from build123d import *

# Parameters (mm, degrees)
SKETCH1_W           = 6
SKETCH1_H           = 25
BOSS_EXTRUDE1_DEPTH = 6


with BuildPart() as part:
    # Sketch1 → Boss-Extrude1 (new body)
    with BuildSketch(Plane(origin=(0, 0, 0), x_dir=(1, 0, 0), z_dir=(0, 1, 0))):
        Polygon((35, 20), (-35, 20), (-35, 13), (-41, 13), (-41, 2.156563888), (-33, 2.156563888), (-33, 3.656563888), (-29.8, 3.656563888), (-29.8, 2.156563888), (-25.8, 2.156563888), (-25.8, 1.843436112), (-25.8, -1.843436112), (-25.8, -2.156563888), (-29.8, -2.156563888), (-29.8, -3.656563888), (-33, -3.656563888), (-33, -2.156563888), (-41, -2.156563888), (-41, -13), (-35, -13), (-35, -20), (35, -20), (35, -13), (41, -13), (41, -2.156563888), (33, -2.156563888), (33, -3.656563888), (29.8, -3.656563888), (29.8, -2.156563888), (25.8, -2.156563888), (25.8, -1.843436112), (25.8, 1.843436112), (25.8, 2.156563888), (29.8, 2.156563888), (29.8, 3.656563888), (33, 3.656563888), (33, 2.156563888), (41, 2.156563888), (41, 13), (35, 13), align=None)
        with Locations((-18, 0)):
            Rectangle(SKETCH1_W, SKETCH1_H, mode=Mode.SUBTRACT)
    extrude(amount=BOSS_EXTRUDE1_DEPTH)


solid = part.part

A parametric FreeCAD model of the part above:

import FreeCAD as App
import Part
import Sketcher

V = App.Vector
Q = App.Units.Quantity

doc = App.newDocument("Part")
params = doc.addObject("Spreadsheet::Sheet", "Params")
for row, (alias, value) in enumerate([
    ("sketch1_width", "70 mm"),
    ("sketch1_width2", "6 mm"),
    ("sketch1_width3", "8 mm"),
    ("sketch1_width4", "4 mm"),
    ("sketch1_height", "7 mm"),
    ("pad1_length", "6 mm"),
], start=1):
    params.set(f"A{row}", alias)
    params.set(f"B{row}", "=" + value)
    params.setAlias(f"B{row}", alias)

body = doc.addObject("PartDesign::Body", "Body")

sketch1 = body.newObject("Sketcher::SketchObject", "Sketch")
sketch1.AttachmentSupport = (doc.getObject("XZ_Plane"), [""])
sketch1.MapMode = "FlatFace"
sketch1.addGeometry(Part.LineSegment(V(35, -20, 0), V(-35, -20, 0)), False)
sketch1.addGeometry(Part.LineSegment(V(-35, -20, 0), V(-35, -13, 0)), False)
sketch1.addGeometry(Part.LineSegment(V(-35, -13, 0), V(-41, -13, 0)), False)
sketch1.addGeometry(Part.LineSegment(V(-41, -13, 0), V(-41, -2.2, 0)), False)
sketch1.addGeometry(Part.LineSegment(V(-41, -2.2, 0), V(-33, -2.2, 0)), False)
sketch1.addGeometry(Part.LineSegment(V(-33, -2.2, 0), V(-33, -3.7, 0)), False)
sketch1.addGeometry(Part.LineSegment(V(-33, -3.7, 0), V(-29.8, -3.7, 0)), False)
sketch1.addGeometry(Part.LineSegment(V(-29.8, -3.7, 0), V(-29.8, -2.2, 0)), False)
sketch1.addGeometry(Part.LineSegment(V(-29.8, -2.2, 0), V(-25.8, -2.2, 0)), False)
sketch1.addGeometry(Part.LineSegment(V(-25.8, -2.2, 0), V(-25.8, 2.2, 0)), False)
sketch1.addGeometry(Part.LineSegment(V(-25.8, 2.2, 0), V(-29.8, 2.2, 0)), False)
sketch1.addGeometry(Part.LineSegment(V(-29.8, 2.2, 0), V(-29.8, 3.7, 0)), False)
sketch1.addGeometry(Part.LineSegment(V(-29.8, 3.7, 0), V(-33, 3.7, 0)), False)
sketch1.addGeometry(Part.LineSegment(V(-33, 3.7, 0), V(-33, 2.2, 0)), False)
sketch1.addGeometry(Part.LineSegment(V(-33, 2.2, 0), V(-41, 2.2, 0)), False)
sketch1.addGeometry(Part.LineSegment(V(-41, 2.2, 0), V(-41, 13, 0)), False)
sketch1.addGeometry(Part.LineSegment(V(-41, 13, 0), V(-35, 13, 0)), False)
sketch1.addGeometry(Part.LineSegment(V(-35, 13, 0), V(-35, 20, 0)), False)
sketch1.addGeometry(Part.LineSegment(V(-35, 20, 0), V(35, 20, 0)), False)
sketch1.addGeometry(Part.LineSegment(V(35, 20, 0), V(35, 13, 0)), False)
sketch1.addGeometry(Part.LineSegment(V(35, 13, 0), V(41, 13, 0)), False)
sketch1.addGeometry(Part.LineSegment(V(41, 13, 0), V(41, 2.2, 0)), False)
sketch1.addGeometry(Part.LineSegment(V(41, 2.2, 0), V(33, 2.2, 0)), False)
sketch1.addGeometry(Part.LineSegment(V(33, 2.2, 0), V(33, 3.7, 0)), False)
sketch1.addGeometry(Part.LineSegment(V(33, 3.7, 0), V(29.8, 3.7, 0)), False)
sketch1.addGeometry(Part.LineSegment(V(29.8, 3.7, 0), V(29.8, 2.2, 0)), False)
sketch1.addGeometry(Part.LineSegment(V(29.8, 2.2, 0), V(25.8, 2.2, 0)), False)
sketch1.addGeometry(Part.LineSegment(V(25.8, 2.2, 0), V(25.8, -2.2, 0)), False)
sketch1.addGeometry(Part.LineSegment(V(25.8, -2.2, 0), V(29.8, -2.2, 0)), False)
sketch1.addGeometry(Part.LineSegment(V(29.8, -2.2, 0), V(29.8, -3.7, 0)), False)
sketch1.addGeometry(Part.LineSegment(V(29.8, -3.7, 0), V(33, -3.7, 0)), False)
sketch1.addGeometry(Part.LineSegment(V(33, -3.7, 0), V(33, -2.2, 0)), False)
sketch1.addGeometry(Part.LineSegment(V(33, -2.2, 0), V(41, -2.2, 0)), False)
sketch1.addGeometry(Part.LineSegment(V(41, -2.2, 0), V(41, -13, 0)), False)
sketch1.addGeometry(Part.LineSegment(V(41, -13, 0), V(35, -13, 0)), False)
sketch1.addGeometry(Part.LineSegment(V(35, -13, 0), V(35, -20, 0)), False)
sketch1.addGeometry(Part.LineSegment(V(-15, 12.5, 0), V(-21, 12.5, 0)), False)
sketch1.addGeometry(Part.LineSegment(V(-21, 12.5, 0), V(-21, -12.5, 0)), False)
sketch1.addGeometry(Part.LineSegment(V(-21, -12.5, 0), V(-15, -12.5, 0)), False)
sketch1.addGeometry(Part.LineSegment(V(-15, -12.5, 0), V(-15, 12.5, 0)), False)
sketch1.addConstraint(Sketcher.Constraint("Coincident", 0, 2, 1, 1))
sketch1.addConstraint(Sketcher.Constraint("Coincident", 1, 2, 2, 1))
sketch1.addConstraint(Sketcher.Constraint("Coincident", 2, 2, 3, 1))
sketch1.addConstraint(Sketcher.Constraint("Coincident", 3, 2, 4, 1))
sketch1.addConstraint(Sketcher.Constraint("Coincident", 4, 2, 5, 1))
sketch1.addConstraint(Sketcher.Constraint("Coincident", 5, 2, 6, 1))
sketch1.addConstraint(Sketcher.Constraint("Coincident", 6, 2, 7, 1))
sketch1.addConstraint(Sketcher.Constraint("Coincident", 7, 2, 8, 1))
sketch1.addConstraint(Sketcher.Constraint("Coincident", 8, 2, 9, 1))
sketch1.addConstraint(Sketcher.Constraint("Coincident", 9, 2, 10, 1))
sketch1.addConstraint(Sketcher.Constraint("Coincident", 10, 2, 11, 1))
sketch1.addConstraint(Sketcher.Constraint("Coincident", 11, 2, 12, 1))
sketch1.addConstraint(Sketcher.Constraint("Coincident", 12, 2, 13, 1))
sketch1.addConstraint(Sketcher.Constraint("Coincident", 13, 2, 14, 1))
sketch1.addConstraint(Sketcher.Constraint("Coincident", 14, 2, 15, 1))
sketch1.addConstraint(Sketcher.Constraint("Coincident", 15, 2, 16, 1))
sketch1.addConstraint(Sketcher.Constraint("Coincident", 16, 2, 17, 1))
sketch1.addConstraint(Sketcher.Constraint("Coincident", 17, 2, 18, 1))
sketch1.addConstraint(Sketcher.Constraint("Coincident", 18, 2, 19, 1))
sketch1.addConstraint(Sketcher.Constraint("Coincident", 19, 2, 20, 1))
sketch1.addConstraint(Sketcher.Constraint("Coincident", 20, 2, 21, 1))
sketch1.addConstraint(Sketcher.Constraint("Coincident", 21, 2, 22, 1))
sketch1.addConstraint(Sketcher.Constraint("Coincident", 22, 2, 23, 1))
sketch1.addConstraint(Sketcher.Constraint("Coincident", 23, 2, 24, 1))
sketch1.addConstraint(Sketcher.Constraint("Coincident", 24, 2, 25, 1))
sketch1.addConstraint(Sketcher.Constraint("Coincident", 25, 2, 26, 1))
sketch1.addConstraint(Sketcher.Constraint("Coincident", 26, 2, 27, 1))
sketch1.addConstraint(Sketcher.Constraint("Coincident", 27, 2, 28, 1))
sketch1.addConstraint(Sketcher.Constraint("Coincident", 28, 2, 29, 1))
sketch1.addConstraint(Sketcher.Constraint("Coincident", 29, 2, 30, 1))
sketch1.addConstraint(Sketcher.Constraint("Coincident", 30, 2, 31, 1))
sketch1.addConstraint(Sketcher.Constraint("Coincident", 31, 2, 32, 1))
sketch1.addConstraint(Sketcher.Constraint("Coincident", 32, 2, 33, 1))
sketch1.addConstraint(Sketcher.Constraint("Coincident", 33, 2, 34, 1))
sketch1.addConstraint(Sketcher.Constraint("Coincident", 34, 2, 35, 1))
sketch1.addConstraint(Sketcher.Constraint("Coincident", 35, 2, 0, 1))
sketch1.addConstraint(Sketcher.Constraint("Coincident", 36, 2, 37, 1))
sketch1.addConstraint(Sketcher.Constraint("Coincident", 37, 2, 38, 1))
sketch1.addConstraint(Sketcher.Constraint("Coincident", 38, 2, 39, 1))
sketch1.addConstraint(Sketcher.Constraint("Coincident", 39, 2, 36, 1))
sketch1.addConstraint(Sketcher.Constraint("Horizontal", 0))
sketch1.addConstraint(Sketcher.Constraint("Vertical", 1))
sketch1.addConstraint(Sketcher.Constraint("Horizontal", 2))
sketch1.addConstraint(Sketcher.Constraint("Vertical", 3))
sketch1.addConstraint(Sketcher.Constraint("Horizontal", 4))
sketch1.addConstraint(Sketcher.Constraint("Vertical", 5))
sketch1.addConstraint(Sketcher.Constraint("Horizontal", 6))
sketch1.addConstraint(Sketcher.Constraint("Vertical", 7))
sketch1.addConstraint(Sketcher.Constraint("Horizontal", 8))
sketch1.addConstraint(Sketcher.Constraint("Vertical", 9))
sketch1.addConstraint(Sketcher.Constraint("Horizontal", 10))
sketch1.addConstraint(Sketcher.Constraint("Vertical", 11))
sketch1.addConstraint(Sketcher.Constraint("Horizontal", 12))
sketch1.addConstraint(Sketcher.Constraint("Vertical", 13))
sketch1.addConstraint(Sketcher.Constraint("Horizontal", 14))
sketch1.addConstraint(Sketcher.Constraint("Vertical", 15))
sketch1.addConstraint(Sketcher.Constraint("Horizontal", 16))
sketch1.addConstraint(Sketcher.Constraint("Vertical", 17))
sketch1.addConstraint(Sketcher.Constraint("Horizontal", 18))
sketch1.addConstraint(Sketcher.Constraint("Vertical", 19))
sketch1.addConstraint(Sketcher.Constraint("Horizontal", 20))
sketch1.addConstraint(Sketcher.Constraint("Vertical", 21))
sketch1.addConstraint(Sketcher.Constraint("Horizontal", 22))
sketch1.addConstraint(Sketcher.Constraint("Vertical", 23))
sketch1.addConstraint(Sketcher.Constraint("Horizontal", 24))
sketch1.addConstraint(Sketcher.Constraint("Vertical", 25))
sketch1.addConstraint(Sketcher.Constraint("Horizontal", 26))
sketch1.addConstraint(Sketcher.Constraint("Vertical", 27))
sketch1.addConstraint(Sketcher.Constraint("Horizontal", 28))
sketch1.addConstraint(Sketcher.Constraint("Vertical", 29))
sketch1.addConstraint(Sketcher.Constraint("Horizontal", 30))
sketch1.addConstraint(Sketcher.Constraint("Vertical", 31))
sketch1.addConstraint(Sketcher.Constraint("Horizontal", 32))
sketch1.addConstraint(Sketcher.Constraint("Vertical", 33))
sketch1.addConstraint(Sketcher.Constraint("Horizontal", 34))
sketch1.addConstraint(Sketcher.Constraint("Vertical", 35))
sketch1.addConstraint(Sketcher.Constraint("Horizontal", 36))
sketch1.addConstraint(Sketcher.Constraint("Vertical", 37))
sketch1.addConstraint(Sketcher.Constraint("Horizontal", 38))
sketch1.addConstraint(Sketcher.Constraint("Vertical", 39))
sketch1.addConstraint(Sketcher.Constraint("Symmetric", 0, 2, 18, 2, -1, 1))
sketch1.addConstraint(Sketcher.Constraint("Symmetric", 2, 2, 20, 2, -1, 1))
sketch1.addConstraint(Sketcher.Constraint("Symmetric", 4, 2, 22, 2, -1, 1))
sketch1.addConstraint(Sketcher.Constraint("Symmetric", 6, 2, 24, 2, -1, 1))
sketch1.addConstraint(Sketcher.Constraint("Symmetric", 8, 2, 26, 2, -1, 1))
sketch1.addConstraint(Sketcher.Constraint("Symmetric", 10, 2, 28, 2, -1, 1))
sketch1.addConstraint(Sketcher.Constraint("Symmetric", 12, 2, 30, 2, -1, 1))
sketch1.addConstraint(Sketcher.Constraint("Symmetric", 14, 2, 32, 2, -1, 1))
sketch1.addConstraint(Sketcher.Constraint("Symmetric", 16, 2, 34, 2, -1, 1))
sketch1.addConstraint(Sketcher.Constraint("Symmetric", 16, 2, 19, 2, -2))
sketch1.addConstraint(Sketcher.Constraint("Symmetric", 14, 2, 21, 2, -2))
sketch1.addConstraint(Sketcher.Constraint("Symmetric", 12, 2, 23, 2, -2))
sketch1.addConstraint(Sketcher.Constraint("Symmetric", 10, 2, 25, 2, -2))
sketch1.addConstraint(Sketcher.Constraint("Horizontal", 4, 2, 7, 2))
sketch1.addConstraint(Sketcher.Constraint("Equal", 34, 36))
sketch1.addConstraint(Sketcher.Constraint("DistanceX", 0, 2, 0, 1, Q("70 mm")))
sketch1.addConstraint(Sketcher.Constraint("DistanceX", 2, 2, 2, 1, Q("6 mm")))
sketch1.addConstraint(Sketcher.Constraint("DistanceX", 4, 1, 4, 2, Q("8 mm")))
sketch1.addConstraint(Sketcher.Constraint("DistanceX", 8, 1, 8, 2, Q("4 mm")))
sketch1.addConstraint(Sketcher.Constraint("DistanceY", 1, 1, 1, 2, Q("7 mm")))
sketch1.addConstraint(Sketcher.Constraint("DistanceY", 37, 2, 37, 1, Q("25 mm")))
sketch1.addConstraint(Sketcher.Constraint("DistanceX", 6, 1, 6, 2, Q("3.2 mm")))
sketch1.addConstraint(Sketcher.Constraint("DistanceY", 5, 2, 5, 1, Q("1.5 mm")))
sketch1.addConstraint(Sketcher.Constraint("DistanceY", 0, 2, -1, 1, Q("20 mm")))
sketch1.addConstraint(Sketcher.Constraint("DistanceX", 36, 2, -1, 1, Q("21 mm")))
sketch1.addConstraint(Sketcher.Constraint("DistanceY", -1, 1, 36, 2, Q("12.5 mm")))
sketch1.addConstraint(Sketcher.Constraint("DistanceY", 3, 1, 3, 2, Q("10.843436 mm")))
sketch1.setExpression("Constraints[95]", "Params.sketch1_width")
sketch1.setExpression("Constraints[96]", "Params.sketch1_width2")
sketch1.setExpression("Constraints[97]", "Params.sketch1_width3")
sketch1.setExpression("Constraints[98]", "Params.sketch1_width4")
sketch1.setExpression("Constraints[99]", "Params.sketch1_height")
pad1 = body.newObject("PartDesign::Pad", "Pad")
pad1.Profile = sketch1
pad1.setExpression("Length", "Params.pad1_length")
pad1.Reversed = True

doc.recompute()
